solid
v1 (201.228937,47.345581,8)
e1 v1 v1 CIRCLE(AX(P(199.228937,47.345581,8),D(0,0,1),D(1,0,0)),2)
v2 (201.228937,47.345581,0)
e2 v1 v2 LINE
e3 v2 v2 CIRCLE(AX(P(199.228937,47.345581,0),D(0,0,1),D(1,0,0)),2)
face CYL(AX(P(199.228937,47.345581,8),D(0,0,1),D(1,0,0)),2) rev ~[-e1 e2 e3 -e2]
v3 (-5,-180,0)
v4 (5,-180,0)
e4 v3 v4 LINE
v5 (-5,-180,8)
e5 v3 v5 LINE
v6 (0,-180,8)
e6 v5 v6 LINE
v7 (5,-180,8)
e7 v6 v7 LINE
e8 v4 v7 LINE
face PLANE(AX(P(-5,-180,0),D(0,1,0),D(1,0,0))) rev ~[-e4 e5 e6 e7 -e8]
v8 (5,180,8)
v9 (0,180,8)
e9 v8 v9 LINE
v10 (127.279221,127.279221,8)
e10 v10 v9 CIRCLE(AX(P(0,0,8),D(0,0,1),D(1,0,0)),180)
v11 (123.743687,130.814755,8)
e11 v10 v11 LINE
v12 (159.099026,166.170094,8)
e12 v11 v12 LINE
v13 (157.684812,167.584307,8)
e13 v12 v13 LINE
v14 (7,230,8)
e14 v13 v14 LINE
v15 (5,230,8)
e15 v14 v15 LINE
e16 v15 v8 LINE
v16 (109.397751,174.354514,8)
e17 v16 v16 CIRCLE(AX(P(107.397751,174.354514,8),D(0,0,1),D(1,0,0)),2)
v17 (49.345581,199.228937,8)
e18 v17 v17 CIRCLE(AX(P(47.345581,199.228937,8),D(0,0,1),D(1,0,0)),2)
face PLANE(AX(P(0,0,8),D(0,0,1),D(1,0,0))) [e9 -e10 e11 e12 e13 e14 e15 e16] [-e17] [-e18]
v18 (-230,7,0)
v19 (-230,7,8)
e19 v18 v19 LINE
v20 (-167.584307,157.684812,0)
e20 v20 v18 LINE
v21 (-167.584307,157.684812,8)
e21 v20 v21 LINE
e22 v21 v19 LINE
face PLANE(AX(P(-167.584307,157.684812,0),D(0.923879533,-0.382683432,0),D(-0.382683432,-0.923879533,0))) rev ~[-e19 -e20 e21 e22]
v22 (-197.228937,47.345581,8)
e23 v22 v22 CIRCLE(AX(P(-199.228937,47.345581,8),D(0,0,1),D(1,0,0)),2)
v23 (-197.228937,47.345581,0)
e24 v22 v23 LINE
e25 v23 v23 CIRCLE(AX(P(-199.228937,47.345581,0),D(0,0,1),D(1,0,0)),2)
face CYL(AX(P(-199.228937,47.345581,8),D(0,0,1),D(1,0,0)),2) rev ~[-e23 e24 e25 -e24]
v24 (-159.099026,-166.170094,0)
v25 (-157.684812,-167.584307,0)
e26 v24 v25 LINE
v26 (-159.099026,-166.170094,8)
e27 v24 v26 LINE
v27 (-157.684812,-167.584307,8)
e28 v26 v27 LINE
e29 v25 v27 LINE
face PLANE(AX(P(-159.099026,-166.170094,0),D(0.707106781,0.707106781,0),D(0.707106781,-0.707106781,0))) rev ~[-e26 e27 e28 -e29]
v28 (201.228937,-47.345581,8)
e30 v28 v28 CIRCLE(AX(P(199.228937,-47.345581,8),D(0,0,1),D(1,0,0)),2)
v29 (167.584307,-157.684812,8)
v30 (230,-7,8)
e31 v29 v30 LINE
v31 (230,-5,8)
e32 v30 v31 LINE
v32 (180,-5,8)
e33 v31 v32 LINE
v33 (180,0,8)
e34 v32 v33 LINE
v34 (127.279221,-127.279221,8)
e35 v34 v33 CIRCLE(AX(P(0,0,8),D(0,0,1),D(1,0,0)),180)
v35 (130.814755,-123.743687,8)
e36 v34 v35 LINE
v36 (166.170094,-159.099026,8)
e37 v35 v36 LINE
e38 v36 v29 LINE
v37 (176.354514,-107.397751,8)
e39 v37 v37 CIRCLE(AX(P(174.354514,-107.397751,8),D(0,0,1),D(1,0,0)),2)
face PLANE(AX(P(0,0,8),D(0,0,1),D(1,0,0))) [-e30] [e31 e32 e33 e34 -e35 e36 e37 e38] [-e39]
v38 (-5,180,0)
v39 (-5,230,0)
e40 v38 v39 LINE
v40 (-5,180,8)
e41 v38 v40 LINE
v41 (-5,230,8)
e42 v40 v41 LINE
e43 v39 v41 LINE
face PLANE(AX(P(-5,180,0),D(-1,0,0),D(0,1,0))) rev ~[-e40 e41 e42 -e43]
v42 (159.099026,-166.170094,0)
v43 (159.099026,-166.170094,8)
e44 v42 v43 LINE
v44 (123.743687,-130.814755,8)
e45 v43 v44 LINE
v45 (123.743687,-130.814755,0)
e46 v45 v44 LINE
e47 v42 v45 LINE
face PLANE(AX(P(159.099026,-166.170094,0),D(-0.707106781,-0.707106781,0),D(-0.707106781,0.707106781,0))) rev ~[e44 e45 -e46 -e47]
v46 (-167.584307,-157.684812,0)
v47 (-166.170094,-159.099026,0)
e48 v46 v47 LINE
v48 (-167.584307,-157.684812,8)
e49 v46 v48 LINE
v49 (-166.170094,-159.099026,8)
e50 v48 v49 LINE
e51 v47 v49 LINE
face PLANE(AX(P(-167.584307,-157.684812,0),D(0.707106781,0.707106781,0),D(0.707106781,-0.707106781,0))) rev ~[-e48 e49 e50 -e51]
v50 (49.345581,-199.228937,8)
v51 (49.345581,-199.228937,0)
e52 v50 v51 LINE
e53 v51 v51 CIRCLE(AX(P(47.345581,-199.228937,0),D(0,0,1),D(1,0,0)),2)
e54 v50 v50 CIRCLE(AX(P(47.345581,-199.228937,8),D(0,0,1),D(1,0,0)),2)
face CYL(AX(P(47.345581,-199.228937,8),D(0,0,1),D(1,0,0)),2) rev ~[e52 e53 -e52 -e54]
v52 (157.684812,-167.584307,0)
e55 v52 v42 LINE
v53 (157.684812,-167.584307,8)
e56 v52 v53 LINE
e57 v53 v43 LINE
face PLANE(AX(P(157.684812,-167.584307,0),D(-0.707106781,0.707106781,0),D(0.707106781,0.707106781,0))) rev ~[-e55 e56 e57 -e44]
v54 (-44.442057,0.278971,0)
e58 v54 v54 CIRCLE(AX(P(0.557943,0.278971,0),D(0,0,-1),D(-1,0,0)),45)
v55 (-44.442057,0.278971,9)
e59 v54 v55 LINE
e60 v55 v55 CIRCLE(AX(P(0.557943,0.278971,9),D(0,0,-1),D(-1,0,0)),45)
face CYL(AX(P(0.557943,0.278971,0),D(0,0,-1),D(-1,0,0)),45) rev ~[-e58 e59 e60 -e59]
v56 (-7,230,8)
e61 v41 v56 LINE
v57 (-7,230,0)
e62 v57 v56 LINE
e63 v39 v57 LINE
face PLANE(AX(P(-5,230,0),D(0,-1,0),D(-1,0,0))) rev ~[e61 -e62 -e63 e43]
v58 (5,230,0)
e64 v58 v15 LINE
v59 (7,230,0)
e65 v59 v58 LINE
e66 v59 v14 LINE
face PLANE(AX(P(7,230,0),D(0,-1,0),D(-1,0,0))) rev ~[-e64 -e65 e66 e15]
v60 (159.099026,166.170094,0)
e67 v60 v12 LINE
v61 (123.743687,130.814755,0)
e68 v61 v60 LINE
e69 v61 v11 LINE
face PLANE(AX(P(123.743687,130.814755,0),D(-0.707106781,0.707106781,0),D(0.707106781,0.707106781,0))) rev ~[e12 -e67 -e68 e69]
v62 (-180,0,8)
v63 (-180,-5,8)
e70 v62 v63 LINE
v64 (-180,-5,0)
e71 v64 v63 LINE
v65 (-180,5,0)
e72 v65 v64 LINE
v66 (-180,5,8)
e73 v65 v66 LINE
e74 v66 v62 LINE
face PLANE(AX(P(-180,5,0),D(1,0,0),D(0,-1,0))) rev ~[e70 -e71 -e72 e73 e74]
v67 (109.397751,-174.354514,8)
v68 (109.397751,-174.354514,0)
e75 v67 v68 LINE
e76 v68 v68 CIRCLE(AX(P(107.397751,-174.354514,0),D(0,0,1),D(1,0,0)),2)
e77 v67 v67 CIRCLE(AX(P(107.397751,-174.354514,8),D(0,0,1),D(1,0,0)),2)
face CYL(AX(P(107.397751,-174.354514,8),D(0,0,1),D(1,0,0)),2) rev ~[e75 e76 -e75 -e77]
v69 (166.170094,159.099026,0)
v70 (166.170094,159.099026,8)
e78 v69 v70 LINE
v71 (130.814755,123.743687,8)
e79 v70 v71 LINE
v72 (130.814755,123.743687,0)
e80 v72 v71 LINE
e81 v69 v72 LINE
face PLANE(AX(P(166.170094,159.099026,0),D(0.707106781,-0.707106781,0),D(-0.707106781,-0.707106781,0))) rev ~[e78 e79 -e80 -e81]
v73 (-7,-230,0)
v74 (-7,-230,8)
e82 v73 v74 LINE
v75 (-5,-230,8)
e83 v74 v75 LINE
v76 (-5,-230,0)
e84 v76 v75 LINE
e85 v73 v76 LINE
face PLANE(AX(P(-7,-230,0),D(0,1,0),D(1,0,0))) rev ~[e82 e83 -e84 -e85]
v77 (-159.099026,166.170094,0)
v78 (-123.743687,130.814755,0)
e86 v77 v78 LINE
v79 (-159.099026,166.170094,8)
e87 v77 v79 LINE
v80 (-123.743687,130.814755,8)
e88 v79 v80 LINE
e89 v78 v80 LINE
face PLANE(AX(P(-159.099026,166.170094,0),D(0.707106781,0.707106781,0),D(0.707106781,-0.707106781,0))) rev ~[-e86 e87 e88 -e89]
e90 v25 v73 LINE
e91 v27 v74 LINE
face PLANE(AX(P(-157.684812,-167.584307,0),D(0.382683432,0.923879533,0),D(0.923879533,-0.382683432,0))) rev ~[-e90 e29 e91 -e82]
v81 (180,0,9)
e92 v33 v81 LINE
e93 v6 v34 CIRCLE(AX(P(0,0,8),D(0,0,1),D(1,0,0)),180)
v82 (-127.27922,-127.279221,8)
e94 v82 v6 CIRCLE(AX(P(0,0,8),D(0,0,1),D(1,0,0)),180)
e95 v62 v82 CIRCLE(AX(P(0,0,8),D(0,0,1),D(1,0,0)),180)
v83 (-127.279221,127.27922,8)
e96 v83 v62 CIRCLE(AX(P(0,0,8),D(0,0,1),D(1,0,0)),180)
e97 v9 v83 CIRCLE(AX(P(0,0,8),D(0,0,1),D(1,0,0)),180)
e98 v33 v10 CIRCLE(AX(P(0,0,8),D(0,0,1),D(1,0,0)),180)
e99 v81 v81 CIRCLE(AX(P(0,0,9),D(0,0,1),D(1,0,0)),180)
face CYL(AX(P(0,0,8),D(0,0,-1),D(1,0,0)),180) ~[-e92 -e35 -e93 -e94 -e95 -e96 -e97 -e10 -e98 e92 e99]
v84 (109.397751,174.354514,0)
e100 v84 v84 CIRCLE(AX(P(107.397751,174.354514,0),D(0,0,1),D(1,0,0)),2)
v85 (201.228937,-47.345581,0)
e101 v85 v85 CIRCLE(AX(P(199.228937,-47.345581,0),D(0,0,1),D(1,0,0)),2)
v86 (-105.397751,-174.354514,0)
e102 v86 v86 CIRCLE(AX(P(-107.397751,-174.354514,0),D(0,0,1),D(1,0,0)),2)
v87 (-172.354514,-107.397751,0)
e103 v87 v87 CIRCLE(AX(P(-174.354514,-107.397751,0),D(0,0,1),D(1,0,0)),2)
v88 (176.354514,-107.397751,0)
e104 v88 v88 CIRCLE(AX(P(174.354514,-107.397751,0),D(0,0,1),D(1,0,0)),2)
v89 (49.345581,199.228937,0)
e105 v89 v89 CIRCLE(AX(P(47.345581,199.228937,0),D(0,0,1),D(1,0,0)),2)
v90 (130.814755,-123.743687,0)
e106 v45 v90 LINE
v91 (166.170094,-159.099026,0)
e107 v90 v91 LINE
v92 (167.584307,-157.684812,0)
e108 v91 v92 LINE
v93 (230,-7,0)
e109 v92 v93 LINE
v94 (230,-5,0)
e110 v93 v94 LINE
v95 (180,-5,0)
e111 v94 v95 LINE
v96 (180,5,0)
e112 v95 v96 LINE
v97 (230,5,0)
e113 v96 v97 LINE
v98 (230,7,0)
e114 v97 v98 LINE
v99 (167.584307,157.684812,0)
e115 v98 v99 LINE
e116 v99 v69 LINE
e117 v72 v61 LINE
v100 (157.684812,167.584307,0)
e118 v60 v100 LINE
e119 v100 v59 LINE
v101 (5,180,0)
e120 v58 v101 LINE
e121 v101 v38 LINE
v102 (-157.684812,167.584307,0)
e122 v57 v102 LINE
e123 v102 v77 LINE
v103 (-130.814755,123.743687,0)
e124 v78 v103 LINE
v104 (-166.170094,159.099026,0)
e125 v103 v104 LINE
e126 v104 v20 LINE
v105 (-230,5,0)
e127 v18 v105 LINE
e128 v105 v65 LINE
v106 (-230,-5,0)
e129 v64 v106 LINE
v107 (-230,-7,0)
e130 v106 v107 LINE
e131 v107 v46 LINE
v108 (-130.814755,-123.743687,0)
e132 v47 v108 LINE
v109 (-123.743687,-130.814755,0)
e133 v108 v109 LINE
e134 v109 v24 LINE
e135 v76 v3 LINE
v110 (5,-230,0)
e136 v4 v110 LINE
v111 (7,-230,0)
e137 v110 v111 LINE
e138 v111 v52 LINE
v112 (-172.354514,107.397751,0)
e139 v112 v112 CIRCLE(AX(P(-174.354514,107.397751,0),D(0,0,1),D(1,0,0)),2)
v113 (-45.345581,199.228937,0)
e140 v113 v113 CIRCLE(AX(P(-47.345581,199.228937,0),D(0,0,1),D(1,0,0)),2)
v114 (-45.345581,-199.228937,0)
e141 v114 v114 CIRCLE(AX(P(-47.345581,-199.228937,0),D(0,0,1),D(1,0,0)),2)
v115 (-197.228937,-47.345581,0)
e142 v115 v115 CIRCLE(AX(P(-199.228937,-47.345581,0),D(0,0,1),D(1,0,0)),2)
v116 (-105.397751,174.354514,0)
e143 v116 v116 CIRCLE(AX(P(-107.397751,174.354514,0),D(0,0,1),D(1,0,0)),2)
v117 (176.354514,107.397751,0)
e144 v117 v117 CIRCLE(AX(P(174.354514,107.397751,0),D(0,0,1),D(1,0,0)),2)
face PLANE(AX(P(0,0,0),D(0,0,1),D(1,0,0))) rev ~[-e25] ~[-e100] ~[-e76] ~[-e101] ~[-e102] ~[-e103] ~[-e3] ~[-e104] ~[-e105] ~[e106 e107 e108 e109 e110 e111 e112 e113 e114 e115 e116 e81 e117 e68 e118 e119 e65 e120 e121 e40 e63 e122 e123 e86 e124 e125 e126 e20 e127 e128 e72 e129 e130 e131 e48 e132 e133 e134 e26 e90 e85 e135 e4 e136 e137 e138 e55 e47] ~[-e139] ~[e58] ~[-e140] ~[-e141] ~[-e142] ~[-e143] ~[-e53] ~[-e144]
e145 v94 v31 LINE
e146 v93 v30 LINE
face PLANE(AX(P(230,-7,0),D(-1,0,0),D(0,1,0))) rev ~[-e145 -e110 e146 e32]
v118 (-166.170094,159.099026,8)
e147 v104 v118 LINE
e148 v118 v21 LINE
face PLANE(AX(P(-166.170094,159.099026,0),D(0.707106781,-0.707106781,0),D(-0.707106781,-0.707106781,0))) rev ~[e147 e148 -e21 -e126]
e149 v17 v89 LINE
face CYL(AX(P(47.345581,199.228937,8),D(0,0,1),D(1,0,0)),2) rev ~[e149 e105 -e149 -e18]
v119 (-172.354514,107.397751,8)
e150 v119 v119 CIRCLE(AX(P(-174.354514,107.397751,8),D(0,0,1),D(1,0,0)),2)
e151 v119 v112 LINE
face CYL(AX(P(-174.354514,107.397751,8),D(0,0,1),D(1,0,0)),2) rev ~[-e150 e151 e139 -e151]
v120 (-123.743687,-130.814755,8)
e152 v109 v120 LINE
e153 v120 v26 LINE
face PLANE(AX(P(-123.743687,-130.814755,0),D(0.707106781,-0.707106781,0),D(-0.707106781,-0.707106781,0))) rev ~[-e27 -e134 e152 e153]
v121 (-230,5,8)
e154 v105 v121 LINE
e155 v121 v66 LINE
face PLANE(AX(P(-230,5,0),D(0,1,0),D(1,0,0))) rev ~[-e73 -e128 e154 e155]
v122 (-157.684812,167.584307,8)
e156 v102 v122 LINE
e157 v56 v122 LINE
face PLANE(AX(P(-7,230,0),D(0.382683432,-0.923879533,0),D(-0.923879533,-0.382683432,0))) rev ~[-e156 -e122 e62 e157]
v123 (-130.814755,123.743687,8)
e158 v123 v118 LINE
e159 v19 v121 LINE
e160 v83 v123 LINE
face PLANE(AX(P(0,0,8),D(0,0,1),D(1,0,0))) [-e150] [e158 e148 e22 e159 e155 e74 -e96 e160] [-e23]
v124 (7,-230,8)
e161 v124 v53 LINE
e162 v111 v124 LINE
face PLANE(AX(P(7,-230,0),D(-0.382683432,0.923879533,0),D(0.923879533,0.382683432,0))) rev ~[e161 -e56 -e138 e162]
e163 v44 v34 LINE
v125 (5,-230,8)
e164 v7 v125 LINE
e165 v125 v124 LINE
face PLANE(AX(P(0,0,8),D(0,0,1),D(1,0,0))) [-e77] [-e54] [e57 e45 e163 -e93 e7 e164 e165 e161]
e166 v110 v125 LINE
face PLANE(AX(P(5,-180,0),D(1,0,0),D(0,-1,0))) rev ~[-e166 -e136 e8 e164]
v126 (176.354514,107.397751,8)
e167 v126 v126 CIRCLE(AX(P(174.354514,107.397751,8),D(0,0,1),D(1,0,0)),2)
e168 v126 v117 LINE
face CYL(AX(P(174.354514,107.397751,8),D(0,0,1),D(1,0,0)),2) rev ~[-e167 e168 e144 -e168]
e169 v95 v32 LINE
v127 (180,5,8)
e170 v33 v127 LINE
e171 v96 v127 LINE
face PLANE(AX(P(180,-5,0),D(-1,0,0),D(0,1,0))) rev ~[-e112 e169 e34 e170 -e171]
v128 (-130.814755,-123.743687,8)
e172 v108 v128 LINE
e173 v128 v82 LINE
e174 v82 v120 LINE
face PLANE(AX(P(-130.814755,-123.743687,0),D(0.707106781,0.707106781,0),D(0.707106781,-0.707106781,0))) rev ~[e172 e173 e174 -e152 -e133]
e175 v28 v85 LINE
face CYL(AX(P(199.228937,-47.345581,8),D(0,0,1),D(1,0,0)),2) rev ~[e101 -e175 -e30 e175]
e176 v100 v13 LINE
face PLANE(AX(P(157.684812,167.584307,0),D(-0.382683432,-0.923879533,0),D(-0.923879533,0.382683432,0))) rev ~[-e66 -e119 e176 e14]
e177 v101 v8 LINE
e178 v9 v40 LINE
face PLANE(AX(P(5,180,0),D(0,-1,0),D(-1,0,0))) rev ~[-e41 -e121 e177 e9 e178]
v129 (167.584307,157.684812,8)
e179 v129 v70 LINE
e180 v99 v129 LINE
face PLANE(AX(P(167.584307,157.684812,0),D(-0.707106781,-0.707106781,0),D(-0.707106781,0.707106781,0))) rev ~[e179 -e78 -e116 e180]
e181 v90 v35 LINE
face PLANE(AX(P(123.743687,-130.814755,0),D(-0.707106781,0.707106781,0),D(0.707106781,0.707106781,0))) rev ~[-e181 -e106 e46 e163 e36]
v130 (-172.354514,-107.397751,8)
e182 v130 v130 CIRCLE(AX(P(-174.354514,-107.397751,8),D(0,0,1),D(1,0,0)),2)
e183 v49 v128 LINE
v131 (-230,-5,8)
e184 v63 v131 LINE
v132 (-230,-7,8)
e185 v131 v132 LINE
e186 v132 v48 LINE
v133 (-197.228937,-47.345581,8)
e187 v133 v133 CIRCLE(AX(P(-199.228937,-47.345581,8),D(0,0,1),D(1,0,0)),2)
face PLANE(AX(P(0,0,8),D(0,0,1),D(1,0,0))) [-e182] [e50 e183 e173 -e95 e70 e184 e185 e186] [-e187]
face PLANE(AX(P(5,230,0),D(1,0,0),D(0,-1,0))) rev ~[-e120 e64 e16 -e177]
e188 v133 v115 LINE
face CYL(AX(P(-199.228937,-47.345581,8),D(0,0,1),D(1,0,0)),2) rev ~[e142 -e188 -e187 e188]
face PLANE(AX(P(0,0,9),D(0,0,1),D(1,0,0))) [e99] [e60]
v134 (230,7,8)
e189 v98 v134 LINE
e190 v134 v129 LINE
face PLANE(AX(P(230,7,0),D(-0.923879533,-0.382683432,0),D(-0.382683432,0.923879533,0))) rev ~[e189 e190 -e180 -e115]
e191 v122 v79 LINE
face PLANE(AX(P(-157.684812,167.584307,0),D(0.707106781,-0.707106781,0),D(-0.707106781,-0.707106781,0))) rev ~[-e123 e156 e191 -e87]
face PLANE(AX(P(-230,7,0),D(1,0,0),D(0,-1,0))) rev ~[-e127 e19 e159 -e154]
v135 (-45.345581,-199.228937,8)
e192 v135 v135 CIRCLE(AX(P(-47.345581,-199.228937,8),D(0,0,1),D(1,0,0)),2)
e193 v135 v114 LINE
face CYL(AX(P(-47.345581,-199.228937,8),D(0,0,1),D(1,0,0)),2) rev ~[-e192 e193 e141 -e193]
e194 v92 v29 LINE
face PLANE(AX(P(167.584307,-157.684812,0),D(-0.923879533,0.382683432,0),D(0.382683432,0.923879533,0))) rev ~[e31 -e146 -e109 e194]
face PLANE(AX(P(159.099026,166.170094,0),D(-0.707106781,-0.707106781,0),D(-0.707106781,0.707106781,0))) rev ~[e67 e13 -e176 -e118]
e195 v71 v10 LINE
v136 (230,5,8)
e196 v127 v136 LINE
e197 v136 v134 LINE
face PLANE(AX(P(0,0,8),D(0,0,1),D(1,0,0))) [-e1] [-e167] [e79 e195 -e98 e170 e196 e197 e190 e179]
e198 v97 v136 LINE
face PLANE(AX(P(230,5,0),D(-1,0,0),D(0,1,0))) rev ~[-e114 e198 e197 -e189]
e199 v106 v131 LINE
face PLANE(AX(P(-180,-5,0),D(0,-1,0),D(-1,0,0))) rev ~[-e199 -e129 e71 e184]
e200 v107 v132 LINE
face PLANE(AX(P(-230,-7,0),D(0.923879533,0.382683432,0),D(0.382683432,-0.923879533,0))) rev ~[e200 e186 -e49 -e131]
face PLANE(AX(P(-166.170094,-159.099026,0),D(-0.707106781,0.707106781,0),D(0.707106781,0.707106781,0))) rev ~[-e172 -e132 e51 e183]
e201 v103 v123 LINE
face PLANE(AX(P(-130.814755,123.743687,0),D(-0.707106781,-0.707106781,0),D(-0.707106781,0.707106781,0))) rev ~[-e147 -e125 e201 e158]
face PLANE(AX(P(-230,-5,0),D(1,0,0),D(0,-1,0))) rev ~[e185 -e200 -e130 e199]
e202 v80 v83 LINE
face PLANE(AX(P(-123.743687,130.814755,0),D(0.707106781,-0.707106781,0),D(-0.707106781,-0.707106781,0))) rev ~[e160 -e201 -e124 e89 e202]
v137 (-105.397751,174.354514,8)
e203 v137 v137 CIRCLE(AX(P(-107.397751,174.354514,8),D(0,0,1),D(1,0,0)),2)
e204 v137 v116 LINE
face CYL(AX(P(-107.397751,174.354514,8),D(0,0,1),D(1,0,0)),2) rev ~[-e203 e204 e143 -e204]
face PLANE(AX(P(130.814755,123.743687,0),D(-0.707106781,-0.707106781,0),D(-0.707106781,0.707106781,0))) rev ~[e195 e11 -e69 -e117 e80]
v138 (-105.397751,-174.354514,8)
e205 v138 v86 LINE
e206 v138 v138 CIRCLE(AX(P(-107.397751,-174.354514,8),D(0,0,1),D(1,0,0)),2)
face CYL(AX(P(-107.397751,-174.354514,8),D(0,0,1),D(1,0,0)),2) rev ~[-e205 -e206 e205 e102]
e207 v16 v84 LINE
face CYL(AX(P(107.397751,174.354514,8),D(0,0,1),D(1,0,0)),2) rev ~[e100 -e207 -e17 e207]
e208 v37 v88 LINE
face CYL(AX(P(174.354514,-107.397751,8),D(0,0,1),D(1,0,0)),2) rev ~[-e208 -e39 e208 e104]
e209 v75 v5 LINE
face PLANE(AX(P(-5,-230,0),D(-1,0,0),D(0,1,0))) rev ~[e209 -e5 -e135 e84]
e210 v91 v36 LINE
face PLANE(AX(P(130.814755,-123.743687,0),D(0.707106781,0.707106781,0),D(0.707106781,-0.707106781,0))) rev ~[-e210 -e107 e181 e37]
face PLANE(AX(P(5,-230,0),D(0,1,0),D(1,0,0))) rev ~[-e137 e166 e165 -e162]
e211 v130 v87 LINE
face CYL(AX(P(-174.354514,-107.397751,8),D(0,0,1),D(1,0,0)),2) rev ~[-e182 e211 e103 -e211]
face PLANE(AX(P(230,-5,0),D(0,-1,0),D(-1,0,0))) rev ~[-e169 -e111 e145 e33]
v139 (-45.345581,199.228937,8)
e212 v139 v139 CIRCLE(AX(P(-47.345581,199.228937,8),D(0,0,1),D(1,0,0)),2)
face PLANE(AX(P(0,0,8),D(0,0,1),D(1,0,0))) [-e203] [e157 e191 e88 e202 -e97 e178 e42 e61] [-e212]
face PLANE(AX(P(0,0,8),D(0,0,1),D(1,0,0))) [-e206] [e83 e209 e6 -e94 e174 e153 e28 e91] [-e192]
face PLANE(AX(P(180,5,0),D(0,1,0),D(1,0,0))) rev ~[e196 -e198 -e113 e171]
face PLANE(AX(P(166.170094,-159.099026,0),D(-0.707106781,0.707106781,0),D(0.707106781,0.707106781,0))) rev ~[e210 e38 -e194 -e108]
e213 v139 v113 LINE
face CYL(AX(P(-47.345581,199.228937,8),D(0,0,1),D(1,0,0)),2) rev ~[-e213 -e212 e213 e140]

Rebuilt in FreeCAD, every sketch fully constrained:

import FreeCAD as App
import Part
import Sketcher

V = App.Vector
Q = App.Units.Quantity

doc = App.newDocument("Part")
body = doc.addObject("PartDesign::Body", "Body")

sketch1 = doc.addObject("Sketcher::SketchObject", "Sketch")
body.addObject(sketch1)
sketch1.AttachmentSupport = (doc.XY_Plane, [""])
sketch1.MapMode = "FlatFace"
sketch1.addGeometry([
    Part.LineSegment(V(5, 230, 0), V(5, 180, 0)),
    Part.LineSegment(V(5, 180, 0), V(-5, 180, 0)),
    Part.LineSegment(V(-5, 180, 0), V(-5, 230, 0)),
    Part.LineSegment(V(-5, 230, 0), V(-7, 230, 0)),
    Part.LineSegment(V(-7, 230, 0), V(-157.7, 167.6, 0)),
    Part.LineSegment(V(-157.7, 167.6, 0), V(-159.1, 166.2, 0)),
    Part.LineSegment(V(-159.1, 166.2, 0), V(-123.7, 130.8, 0)),
    Part.LineSegment(V(-123.7, 130.8, 0), V(-130.8, 123.7, 0)),
    Part.LineSegment(V(-130.8, 123.7, 0), V(-166.2, 159.1, 0)),
    Part.LineSegment(V(-166.2, 159.1, 0), V(-167.6, 157.7, 0)),
    Part.LineSegment(V(-167.6, 157.7, 0), V(-230, 7, 0)),
    Part.LineSegment(V(-230, 7, 0), V(-230, 5, 0)),
    Part.LineSegment(V(-230, 5, 0), V(-180, 5, 0)),
    Part.LineSegment(V(-180, 5, 0), V(-180, -5, 0)),
    Part.LineSegment(V(-180, -5, 0), V(-230, -5, 0)),
    Part.LineSegment(V(-230, -5, 0), V(-230, -7, 0)),
    Part.LineSegment(V(-230, -7, 0), V(-167.6, -157.7, 0)),
    Part.LineSegment(V(-167.6, -157.7, 0), V(-166.2, -159.1, 0)),
    Part.LineSegment(V(-166.2, -159.1, 0), V(-130.8, -123.7, 0)),
    Part.LineSegment(V(-130.8, -123.7, 0), V(-123.7, -130.8, 0)),
    Part.LineSegment(V(-123.7, -130.8, 0), V(-159.1, -166.2, 0)),
    Part.LineSegment(V(-159.1, -166.2, 0), V(-157.7, -167.6, 0)),
    Part.LineSegment(V(-157.7, -167.6, 0), V(-7, -230, 0)),
    Part.LineSegment(V(-7, -230, 0), V(-5, -230, 0)),
    Part.LineSegment(V(-5, -230, 0), V(-5, -180, 0)),
    Part.LineSegment(V(-5, -180, 0), V(5, -180, 0)),
    Part.LineSegment(V(5, -180, 0), V(5, -230, 0)),
    Part.LineSegment(V(5, -230, 0), V(7, -230, 0)),
    Part.LineSegment(V(7, -230, 0), V(157.7, -167.6, 0)),
    Part.LineSegment(V(157.7, -167.6, 0), V(159.1, -166.2, 0)),
    Part.LineSegment(V(159.1, -166.2, 0), V(123.7, -130.8, 0)),
    Part.LineSegment(V(123.7, -130.8, 0), V(130.8, -123.7, 0)),
    Part.LineSegment(V(130.8, -123.7, 0), V(166.2, -159.1, 0)),
    Part.LineSegment(V(166.2, -159.1, 0), V(167.6, -157.7, 0)),
    Part.LineSegment(V(167.6, -157.7, 0), V(230, -7, 0)),
    Part.LineSegment(V(230, -7, 0), V(230, -5, 0)),
    Part.LineSegment(V(230, -5, 0), V(180, -5, 0)),
    Part.LineSegment(V(180, -5, 0), V(180, 5, 0)),
    Part.LineSegment(V(180, 5, 0), V(230, 5, 0)),
    Part.LineSegment(V(230, 5, 0), V(230, 7, 0)),
    Part.LineSegment(V(230, 7, 0), V(167.6, 157.7, 0)),
    Part.LineSegment(V(167.6, 157.7, 0), V(166.2, 159.1, 0)),
    Part.LineSegment(V(166.2, 159.1, 0), V(130.8, 123.7, 0)),
    Part.LineSegment(V(130.8, 123.7, 0), V(123.7, 130.8, 0)),
    Part.LineSegment(V(123.7, 130.8, 0), V(159.1, 166.2, 0)),
    Part.LineSegment(V(159.1, 166.2, 0), V(157.7, 167.6, 0)),
    Part.LineSegment(V(157.7, 167.6, 0), V(7, 230, 0)),
    Part.LineSegment(V(7, 230, 0), V(5, 230, 0)),
], False)
sketch1.addConstraint([
    Sketcher.Constraint("Coincident", 0, 2, 1, 1),
    Sketcher.Constraint("Coincident", 1, 2, 2, 1),
    Sketcher.Constraint("Coincident", 2, 2, 3, 1),
    Sketcher.Constraint("Coincident", 3, 2, 4, 1),
    Sketcher.Constraint("Coincident", 4, 2, 5, 1),
    Sketcher.Constraint("Coincident", 5, 2, 6, 1),
    Sketcher.Constraint("Coincident", 6, 2, 7, 1),
    Sketcher.Constraint("Coincident", 7, 2, 8, 1),
    Sketcher.Constraint("Coincident", 8, 2, 9, 1),
    Sketcher.Constraint("Coincident", 9, 2, 10, 1),
    Sketcher.Constraint("Coincident", 10, 2, 11, 1),
    Sketcher.Constraint("Coincident", 11, 2, 12, 1),
    Sketcher.Constraint("Coincident", 12, 2, 13, 1),
    Sketcher.Constraint("Coincident", 13, 2, 14, 1),
    Sketcher.Constraint("Coincident", 14, 2, 15, 1),
    Sketcher.Constraint("Coincident", 15, 2, 16, 1),
    Sketcher.Constraint("Coincident", 16, 2, 17, 1),
    Sketcher.Constraint("Coincident", 17, 2, 18, 1),
    Sketcher.Constraint("Coincident", 18, 2, 19, 1),
    Sketcher.Constraint("Coincident", 19, 2, 20, 1),
    Sketcher.Constraint("Coincident", 20, 2, 21, 1),
    Sketcher.Constraint("Coincident", 21, 2, 22, 1),
    Sketcher.Constraint("Coincident", 22, 2, 23, 1),
    Sketcher.Constraint("Coincident", 23, 2, 24, 1),
    Sketcher.Constraint("Coincident", 24, 2, 25, 1),
    Sketcher.Constraint("Coincident", 25, 2, 26, 1),
    Sketcher.Constraint("Coincident", 26, 2, 27, 1),
    Sketcher.Constraint("Coincident", 27, 2, 28, 1),
    Sketcher.Constraint("Coincident", 28, 2, 29, 1),
    Sketcher.Constraint("Coincident", 29, 2, 30, 1),
    Sketcher.Constraint("Coincident", 30, 2, 31, 1),
    Sketcher.Constraint("Coincident", 31, 2, 32, 1),
    Sketcher.Constraint("Coincident", 32, 2, 33, 1),
    Sketcher.Constraint("Coincident", 33, 2, 34, 1),
    Sketcher.Constraint("Coincident", 34, 2, 35, 1),
    Sketcher.Constraint("Coincident", 35, 2, 36, 1),
    Sketcher.Constraint("Coincident", 36, 2, 37, 1),
    Sketcher.Constraint("Coincident", 37, 2, 38, 1),
    Sketcher.Constraint("Coincident", 38, 2, 39, 1),
    Sketcher.Constraint("Coincident", 39, 2, 40, 1),
    Sketcher.Constraint("Coincident", 40, 2, 41, 1),
    Sketcher.Constraint("Coincident", 41, 2, 42, 1),
    Sketcher.Constraint("Coincident", 42, 2, 43, 1),
    Sketcher.Constraint("Coincident", 43, 2, 44, 1),
    Sketcher.Constraint("Coincident", 44, 2, 45, 1),
    Sketcher.Constraint("Coincident", 45, 2, 46, 1),
    Sketcher.Constraint("Coincident", 46, 2, 47, 1),
    Sketcher.Constraint("Coincident", 47, 2, 0, 1),
    Sketcher.Constraint("Vertical", 0),
    Sketcher.Constraint("Horizontal", 1),
    Sketcher.Constraint("Vertical", 2),
    Sketcher.Constraint("Horizontal", 3),
    Sketcher.Constraint("Vertical", 11),
    Sketcher.Constraint("Horizontal", 12),
    Sketcher.Constraint("Vertical", 13),
    Sketcher.Constraint("Horizontal", 14),
    Sketcher.Constraint("Vertical", 15),
    Sketcher.Constraint("Horizontal", 23),
    Sketcher.Constraint("Vertical", 24),
    Sketcher.Constraint("Horizontal", 25),
    Sketcher.Constraint("Vertical", 26),
    Sketcher.Constraint("Horizontal", 27),
    Sketcher.Constraint("Vertical", 35),
    Sketcher.Constraint("Horizontal", 36),
    Sketcher.Constraint("Vertical", 37),
    Sketcher.Constraint("Horizontal", 38),
    Sketcher.Constraint("Vertical", 39),
    Sketcher.Constraint("Horizontal", 47),
    Sketcher.Constraint("Symmetric", 0, 2, 24, 2, -1, 1),
    Sketcher.Constraint("Symmetric", 2, 2, 26, 2, -1, 1),
    Sketcher.Constraint("Symmetric", 4, 2, 28, 2, -1, 1),
    Sketcher.Constraint("Symmetric", 5, 2, 29, 2, -1, 1),
    Sketcher.Constraint("Symmetric", 6, 2, 30, 2, -1, 1),
    Sketcher.Constraint("Symmetric", 7, 2, 31, 2, -1, 1),
    Sketcher.Constraint("Symmetric", 8, 2, 32, 2, -1, 1),
    Sketcher.Constraint("Symmetric", 9, 2, 33, 2, -1, 1),
    Sketcher.Constraint("Symmetric", 10, 2, 34, 2, -1, 1),
    Sketcher.Constraint("Symmetric", 12, 2, 36, 2, -1, 1),
    Sketcher.Constraint("Symmetric", 14, 2, 38, 2, -1, 1),
    Sketcher.Constraint("Symmetric", 16, 2, 40, 2, -1, 1),
    Sketcher.Constraint("Symmetric", 17, 2, 41, 2, -1, 1),
    Sketcher.Constraint("Symmetric", 18, 2, 42, 2, -1, 1),
    Sketcher.Constraint("Symmetric", 19, 2, 43, 2, -1, 1),
    Sketcher.Constraint("Symmetric", 20, 2, 44, 2, -1, 1),
    Sketcher.Constraint("Symmetric", 21, 2, 45, 2, -1, 1),
    Sketcher.Constraint("Symmetric", 22, 2, 46, 2, -1, 1),
    Sketcher.Constraint("Symmetric", 23, 2, 26, 2, -2),
    Sketcher.Constraint("Symmetric", 21, 2, 28, 2, -2),
    Sketcher.Constraint("Symmetric", 20, 2, 29, 2, -2),
    Sketcher.Constraint("Symmetric", 19, 2, 30, 2, -2),
    Sketcher.Constraint("Symmetric", 18, 2, 31, 2, -2),
    Sketcher.Constraint("Symmetric", 17, 2, 32, 2, -2),
    Sketcher.Constraint("Symmetric", 16, 2, 33, 2, -2),
    Sketcher.Constraint("Symmetric", 15, 2, 34, 2, -2),
    Sketcher.Constraint("Perpendicular", 5, 6),
    Sketcher.Constraint("Perpendicular", 6, 7),
    Sketcher.Constraint("Perpendicular", 7, 8),
    Sketcher.Constraint("Perpendicular", 8, 9),
    Sketcher.Constraint("Perpendicular", 4, 16),
    Sketcher.Constraint("Perpendicular", 9, 17),
    Sketcher.Constraint("Perpendicular", 10, 22),
    Sketcher.Constraint("Perpendicular", 16, 28),
    Sketcher.Constraint("Perpendicular", 28, 40),
    Sketcher.Constraint("Horizontal", 14, 2, 35, 2),
    Sketcher.Constraint("Equal", 38, 0),
    Sketcher.Constraint("Equal", 47, 11),
    Sketcher.Constraint("Equal", 25, 13),
    Sketcher.Constraint("Equal", 6, 8),
    Sketcher.Constraint("Equal", 5, 9),
    Sketcher.Constraint("Equal", 4, 10),
    Sketcher.Constraint("DistanceX", 1, 2, 1, 1, Q("10 mm")),
    Sketcher.Constraint("DistanceX", 3, 2, 3, 1, Q("2 mm")),
    Sketcher.Constraint("DistanceX", 12, 1, 12, 2, Q("50 mm")),
    Sketcher.Constraint("Distance", 5, Q("2 mm")),
    Sketcher.Constraint("Distance", 6, Q("50 mm")),
    Sketcher.Constraint("Distance", 7, Q("10 mm")),
    Sketcher.Constraint("DistanceY", -1, 1, 0, 2, Q("180 mm")),
    Sketcher.Constraint("Angle", 4, Q("-157.5 deg")),
])
pad1 = doc.addObject("PartDesign::Pad", "Pad")
body.addObject(pad1)
pad1.Profile = sketch1
pad1.Length = 8

sketch2 = doc.addObject("Sketcher::SketchObject", "Sketch001")
body.addObject(sketch2)
sketch2.AttachmentSupport = (doc.XY_Plane, [""])
sketch2.MapMode = "FlatFace"
sketch2.AttachmentOffset = App.Placement(V(0, 0, 8), App.Rotation())
sketch2.addGeometry(Part.Circle(V(0, 0, 0), V(0, 0, 1), 180), False)
sketch2.addConstraint([
    Sketcher.Constraint("Coincident", 0, 3, -1, 1),
    Sketcher.Constraint("Diameter", 0, Q("360 mm")),
])
pad2 = doc.addObject("PartDesign::Pad", "Pad001")
body.addObject(pad2)
pad2.Profile = sketch2
pad2.Length = 1

sketch3 = doc.addObject("Sketcher::SketchObject", "Sketch002")
body.addObject(sketch3)
sketch3.AttachmentSupport = (doc.XY_Plane, [""])
sketch3.MapMode = "FlatFace"
sketch3.AttachmentOffset = App.Placement(V(0, 0, 8), App.Rotation())
sketch3.addGeometry(Part.Circle(V(107.4, 174.4, 0), V(0, 0, 1), 2), False)
sketch3.addConstraint([
    Sketcher.Constraint("Diameter", 0, Q("4 mm")),
    Sketcher.Constraint("DistanceX", -1, 1, 0, 3, Q("107.397751 mm")),
    Sketcher.Constraint("DistanceY", -1, 1, 0, 3, Q("174.354514 mm")),
])
pocket1 = doc.addObject("PartDesign::Pocket", "Pocket")
body.addObject(pocket1)
pocket1.Profile = sketch3
pocket1.Type = "UpToFirst"

sketch4 = doc.addObject("Sketcher::SketchObject", "Sketch003")
body.addObject(sketch4)
sketch4.AttachmentSupport = (doc.XY_Plane, [""])
sketch4.MapMode = "FlatFace"
sketch4.AttachmentOffset = App.Placement(V(0, 0, 8), App.Rotation())
sketch4.addGeometry(Part.Circle(V(47.3, 199.2, 0), V(0, 0, 1), 2), False)
sketch4.addConstraint([
    Sketcher.Constraint("Diameter", 0, Q("4 mm")),
    Sketcher.Constraint("DistanceX", -1, 1, 0, 3, Q("47.345581 mm")),
    Sketcher.Constraint("DistanceY", -1, 1, 0, 3, Q("199.228937 mm")),
])
pocket2 = doc.addObject("PartDesign::Pocket", "Pocket001")
body.addObject(pocket2)
pocket2.Profile = sketch4
pocket2.Type = "UpToFirst"

sketch5 = doc.addObject("Sketcher::SketchObject", "Sketch004")
body.addObject(sketch5)
sketch5.AttachmentSupport = (doc.XY_Plane, [""])
sketch5.MapMode = "FlatFace"
sketch5.AttachmentOffset = App.Placement(V(0, 0, 8), App.Rotation())
sketch5.addGeometry(Part.Circle(V(199.2, 47.3, 0), V(0, 0, 1), 2), False)
sketch5.addConstraint([
    Sketcher.Constraint("Diameter", 0, Q("4 mm")),
    Sketcher.Constraint("DistanceY", -1, 1, 0, 3, Q("47.345581 mm")),
    Sketcher.Constraint("DistanceX", -1, 1, 0, 3, Q("199.228937 mm")),
])
pocket3 = doc.addObject("PartDesign::Pocket", "Pocket002")
body.addObject(pocket3)
pocket3.Profile = sketch5
pocket3.Type = "UpToFirst"

sketch6 = doc.addObject("Sketcher::SketchObject", "Sketch005")
body.addObject(sketch6)
sketch6.AttachmentSupport = (doc.XY_Plane, [""])
sketch6.MapMode = "FlatFace"
sketch6.AttachmentOffset = App.Placement(V(0, 0, 8), App.Rotation())
sketch6.addGeometry(Part.Circle(V(174.4, 107.4, 0), V(0, 0, 1), 2), False)
sketch6.addConstraint([
    Sketcher.Constraint("Diameter", 0, Q("4 mm")),
    Sketcher.Constraint("DistanceY", -1, 1, 0, 3, Q("107.397751 mm")),
    Sketcher.Constraint("DistanceX", -1, 1, 0, 3, Q("174.354514 mm")),
])
pocket4 = doc.addObject("PartDesign::Pocket", "Pocket003")
body.addObject(pocket4)
pocket4.Profile = sketch6
pocket4.Type = "UpToFirst"

sketch7 = doc.addObject("Sketcher::SketchObject", "Sketch006")
body.addObject(sketch7)
sketch7.AttachmentSupport = (doc.XY_Plane, [""])
sketch7.MapMode = "FlatFace"
sketch7.AttachmentOffset = App.Placement(V(0, 0, 8), App.Rotation())
sketch7.addGeometry(Part.Circle(V(174.4, -107.4, 0), V(0, 0, 1), 2), False)
sketch7.addConstraint([
    Sketcher.Constraint("Diameter", 0, Q("4 mm")),
    Sketcher.Constraint("DistanceY", 0, 3, -1, 1, Q("107.397751 mm")),
    Sketcher.Constraint("DistanceX", -1, 1, 0, 3, Q("174.354514 mm")),
])
pocket5 = doc.addObject("PartDesign::Pocket", "Pocket004")
body.addObject(pocket5)
pocket5.Profile = sketch7
pocket5.Type = "UpToFirst"

sketch8 = doc.addObject("Sketcher::SketchObject", "Sketch007")
body.addObject(sketch8)
sketch8.AttachmentSupport = (doc.XY_Plane, [""])
sketch8.MapMode = "FlatFace"
sketch8.AttachmentOffset = App.Placement(V(0, 0, 8), App.Rotation())
sketch8.addGeometry(Part.Circle(V(199.2, -47.3, 0), V(0, 0, 1), 2), False)
sketch8.addConstraint([
    Sketcher.Constraint("Diameter", 0, Q("4 mm")),
    Sketcher.Constraint("DistanceY", 0, 3, -1, 1, Q("47.345581 mm")),
    Sketcher.Constraint("DistanceX", -1, 1, 0, 3, Q("199.228937 mm")),
])
pocket6 = doc.addObject("PartDesign::Pocket", "Pocket005")
body.addObject(pocket6)
pocket6.Profile = sketch8
pocket6.Type = "UpToFirst"

sketch9 = doc.addObject("Sketcher::SketchObject", "Sketch008")
body.addObject(sketch9)
sketch9.AttachmentSupport = (doc.XY_Plane, [""])
sketch9.MapMode = "FlatFace"
sketch9.AttachmentOffset = App.Placement(V(0, 0, 8), App.Rotation())
sketch9.addGeometry(Part.Circle(V(47.3, -199.2, 0), V(0, 0, 1), 2), False)
sketch9.addConstraint([
    Sketcher.Constraint("Diameter", 0, Q("4 mm")),
    Sketcher.Constraint("DistanceX", -1, 1, 0, 3, Q("47.345581 mm")),
    Sketcher.Constraint("DistanceY", 0, 3, -1, 1, Q("199.228937 mm")),
])
pocket7 = doc.addObject("PartDesign::Pocket", "Pocket006")
body.addObject(pocket7)
pocket7.Profile = sketch9
pocket7.Type = "UpToFirst"

sketch10 = doc.addObject("Sketcher::SketchObject", "Sketch009")
body.addObject(sketch10)
sketch10.AttachmentSupport = (doc.XY_Plane, [""])
sketch10.MapMode = "FlatFace"
sketch10.AttachmentOffset = App.Placement(V(0, 0, 8), App.Rotation())
sketch10.addGeometry(Part.Circle(V(107.4, -174.4, 0), V(0, 0, 1), 2), False)
sketch10.addConstraint([
    Sketcher.Constraint("Diameter", 0, Q("4 mm")),
    Sketcher.Constraint("DistanceX", -1, 1, 0, 3, Q("107.397751 mm")),
    Sketcher.Constraint("DistanceY", 0, 3, -1, 1, Q("174.354514 mm")),
])
pocket8 = doc.addObject("PartDesign::Pocket", "Pocket007")
body.addObject(pocket8)
pocket8.Profile = sketch10
pocket8.Type = "UpToFirst"

sketch11 = doc.addObject("Sketcher::SketchObject", "Sketch010")
body.addObject(sketch11)
sketch11.AttachmentSupport = (doc.XY_Plane, [""])
sketch11.MapMode = "FlatFace"
sketch11.AttachmentOffset = App.Placement(V(0, 0, 8), App.Rotation())
sketch11.addGeometry(Part.Circle(V(-107.4, -174.4, 0), V(0, 0, 1), 2), False)
sketch11.addConstraint([
    Sketcher.Constraint("Diameter", 0, Q("4 mm")),
    Sketcher.Constraint("DistanceX", 0, 3, -1, 1, Q("107.397751 mm")),
    Sketcher.Constraint("DistanceY", 0, 3, -1, 1, Q("174.354514 mm")),
])
pocket9 = doc.addObject("PartDesign::Pocket", "Pocket008")
body.addObject(pocket9)
pocket9.Profile = sketch11
pocket9.Type = "UpToFirst"

sketch12 = doc.addObject("Sketcher::SketchObject", "Sketch011")
body.addObject(sketch12)
sketch12.AttachmentSupport = (doc.XY_Plane, [""])
sketch12.MapMode = "FlatFace"
sketch12.AttachmentOffset = App.Placement(V(0, 0, 8), App.Rotation())
sketch12.addGeometry(Part.Circle(V(-47.3, -199.2, 0), V(0, 0, 1), 2), False)
sketch12.addConstraint([
    Sketcher.Constraint("Diameter", 0, Q("4 mm")),
    Sketcher.Constraint("DistanceX", 0, 3, -1, 1, Q("47.345581 mm")),
    Sketcher.Constraint("DistanceY", 0, 3, -1, 1, Q("199.228937 mm")),
])
pocket10 = doc.addObject("PartDesign::Pocket", "Pocket009")
body.addObject(pocket10)
pocket10.Profile = sketch12
pocket10.Type = "UpToFirst"

sketch13 = doc.addObject("Sketcher::SketchObject", "Sketch012")
body.addObject(sketch13)
sketch13.AttachmentSupport = (doc.XY_Plane, [""])
sketch13.MapMode = "FlatFace"
sketch13.AttachmentOffset = App.Placement(V(0, 0, 8), App.Rotation())
sketch13.addGeometry(Part.Circle(V(-199.2, -47.3, 0), V(0, 0, 1), 2), False)
sketch13.addConstraint([
    Sketcher.Constraint("Diameter", 0, Q("4 mm")),
    Sketcher.Constraint("DistanceY", 0, 3, -1, 1, Q("47.345581 mm")),
    Sketcher.Constraint("DistanceX", 0, 3, -1, 1, Q("199.228937 mm")),
])
pocket11 = doc.addObject("PartDesign::Pocket", "Pocket010")
body.addObject(pocket11)
pocket11.Profile = sketch13
pocket11.Type = "UpToFirst"

sketch14 = doc.addObject("Sketcher::SketchObject", "Sketch013")
body.addObject(sketch14)
sketch14.AttachmentSupport = (doc.XY_Plane, [""])
sketch14.MapMode = "FlatFace"
sketch14.AttachmentOffset = App.Placement(V(0, 0, 8), App.Rotation())
sketch14.addGeometry(Part.Circle(V(-174.4, -107.4, 0), V(0, 0, 1), 2), False)
sketch14.addConstraint([
    Sketcher.Constraint("Diameter", 0, Q("4 mm")),
    Sketcher.Constraint("DistanceY", 0, 3, -1, 1, Q("107.397751 mm")),
    Sketcher.Constraint("DistanceX", 0, 3, -1, 1, Q("174.354514 mm")),
])
pocket12 = doc.addObject("PartDesign::Pocket", "Pocket011")
body.addObject(pocket12)
pocket12.Profile = sketch14
pocket12.Type = "UpToFirst"

sketch15 = doc.addObject("Sketcher::SketchObject", "Sketch014")
body.addObject(sketch15)
sketch15.AttachmentSupport = (doc.XY_Plane, [""])
sketch15.MapMode = "FlatFace"
sketch15.AttachmentOffset = App.Placement(V(0, 0, 8), App.Rotation())
sketch15.addGeometry(Part.Circle(V(-174.4, 107.4, 0), V(0, 0, 1), 2), False)
sketch15.addConstraint([
    Sketcher.Constraint("Diameter", 0, Q("4 mm")),
    Sketcher.Constraint("DistanceY", -1, 1, 0, 3, Q("107.397751 mm")),
    Sketcher.Constraint("DistanceX", 0, 3, -1, 1, Q("174.354514 mm")),
])
pocket13 = doc.addObject("PartDesign::Pocket", "Pocket012")
body.addObject(pocket13)
pocket13.Profile = sketch15
pocket13.Type = "UpToFirst"

sketch16 = doc.addObject("Sketcher::SketchObject", "Sketch015")
body.addObject(sketch16)
sketch16.AttachmentSupport = (doc.XY_Plane, [""])
sketch16.MapMode = "FlatFace"
sketch16.AttachmentOffset = App.Placement(V(0, 0, 8), App.Rotation())
sketch16.addGeometry(Part.Circle(V(-199.2, 47.3, 0), V(0, 0, 1), 2), False)
sketch16.addConstraint([
    Sketcher.Constraint("Diameter", 0, Q("4 mm")),
    Sketcher.Constraint("DistanceY", -1, 1, 0, 3, Q("47.345581 mm")),
    Sketcher.Constraint("DistanceX", 0, 3, -1, 1, Q("199.228937 mm")),
])
pocket14 = doc.addObject("PartDesign::Pocket", "Pocket013")
body.addObject(pocket14)
pocket14.Profile = sketch16
pocket14.Type = "UpToFirst"

sketch17 = doc.addObject("Sketcher::SketchObject", "Sketch016")
body.addObject(sketch17)
sketch17.AttachmentSupport = (doc.XY_Plane, [""])
sketch17.MapMode = "FlatFace"
sketch17.AttachmentOffset = App.Placement(V(0, 0, 8), App.Rotation())
sketch17.addGeometry(Part.Circle(V(-47.3, 199.2, 0), V(0, 0, 1), 2), False)
sketch17.addConstraint([
    Sketcher.Constraint("Diameter", 0, Q("4 mm")),
    Sketcher.Constraint("DistanceX", 0, 3, -1, 1, Q("47.345581 mm")),
    Sketcher.Constraint("DistanceY", -1, 1, 0, 3, Q("199.228937 mm")),
])
pocket15 = doc.addObject("PartDesign::Pocket", "Pocket014")
body.addObject(pocket15)
pocket15.Profile = sketch17
pocket15.Type = "UpToFirst"

sketch18 = doc.addObject("Sketcher::SketchObject", "Sketch017")
body.addObject(sketch18)
sketch18.AttachmentSupport = (doc.XY_Plane, [""])
sketch18.MapMode = "FlatFace"
sketch18.AttachmentOffset = App.Placement(V(0, 0, 8), App.Rotation())
sketch18.addGeometry(Part.Circle(V(-107.4, 174.4, 0), V(0, 0, 1), 2), False)
sketch18.addConstraint([
    Sketcher.Constraint("Diameter", 0, Q("4 mm")),
    Sketcher.Constraint("DistanceX", 0, 3, -1, 1, Q("107.397751 mm")),
    Sketcher.Constraint("DistanceY", -1, 1, 0, 3, Q("174.354514 mm")),
])
pocket16 = doc.addObject("PartDesign::Pocket", "Pocket015")
body.addObject(pocket16)
pocket16.Profile = sketch18
pocket16.Type = "UpToFirst"

sketch19 = doc.addObject("Sketcher::SketchObject", "Sketch018")
body.addObject(sketch19)
sketch19.AttachmentSupport = (doc.XY_Plane, [""])
sketch19.MapMode = "FlatFace"
sketch19.addGeometry(Part.Circle(V(1, 0, 0), V(0, 0, 1), 45), False)
sketch19.addConstraint([
    Sketcher.Constraint("Diameter", 0, Q("90 mm")),
    Sketcher.Constraint("DistanceY", -1, 1, 0, 3, Q("0.278971 mm")),
    Sketcher.Constraint("DistanceX", -1, 1, 0, 3, Q("0.557943 mm")),
])
pocket17 = doc.addObject("PartDesign::Pocket", "Pocket016")
body.addObject(pocket17)
pocket17.Profile = sketch19
pocket17.Type = "UpToFirst"
pocket17.Reversed = True

doc.recompute()
